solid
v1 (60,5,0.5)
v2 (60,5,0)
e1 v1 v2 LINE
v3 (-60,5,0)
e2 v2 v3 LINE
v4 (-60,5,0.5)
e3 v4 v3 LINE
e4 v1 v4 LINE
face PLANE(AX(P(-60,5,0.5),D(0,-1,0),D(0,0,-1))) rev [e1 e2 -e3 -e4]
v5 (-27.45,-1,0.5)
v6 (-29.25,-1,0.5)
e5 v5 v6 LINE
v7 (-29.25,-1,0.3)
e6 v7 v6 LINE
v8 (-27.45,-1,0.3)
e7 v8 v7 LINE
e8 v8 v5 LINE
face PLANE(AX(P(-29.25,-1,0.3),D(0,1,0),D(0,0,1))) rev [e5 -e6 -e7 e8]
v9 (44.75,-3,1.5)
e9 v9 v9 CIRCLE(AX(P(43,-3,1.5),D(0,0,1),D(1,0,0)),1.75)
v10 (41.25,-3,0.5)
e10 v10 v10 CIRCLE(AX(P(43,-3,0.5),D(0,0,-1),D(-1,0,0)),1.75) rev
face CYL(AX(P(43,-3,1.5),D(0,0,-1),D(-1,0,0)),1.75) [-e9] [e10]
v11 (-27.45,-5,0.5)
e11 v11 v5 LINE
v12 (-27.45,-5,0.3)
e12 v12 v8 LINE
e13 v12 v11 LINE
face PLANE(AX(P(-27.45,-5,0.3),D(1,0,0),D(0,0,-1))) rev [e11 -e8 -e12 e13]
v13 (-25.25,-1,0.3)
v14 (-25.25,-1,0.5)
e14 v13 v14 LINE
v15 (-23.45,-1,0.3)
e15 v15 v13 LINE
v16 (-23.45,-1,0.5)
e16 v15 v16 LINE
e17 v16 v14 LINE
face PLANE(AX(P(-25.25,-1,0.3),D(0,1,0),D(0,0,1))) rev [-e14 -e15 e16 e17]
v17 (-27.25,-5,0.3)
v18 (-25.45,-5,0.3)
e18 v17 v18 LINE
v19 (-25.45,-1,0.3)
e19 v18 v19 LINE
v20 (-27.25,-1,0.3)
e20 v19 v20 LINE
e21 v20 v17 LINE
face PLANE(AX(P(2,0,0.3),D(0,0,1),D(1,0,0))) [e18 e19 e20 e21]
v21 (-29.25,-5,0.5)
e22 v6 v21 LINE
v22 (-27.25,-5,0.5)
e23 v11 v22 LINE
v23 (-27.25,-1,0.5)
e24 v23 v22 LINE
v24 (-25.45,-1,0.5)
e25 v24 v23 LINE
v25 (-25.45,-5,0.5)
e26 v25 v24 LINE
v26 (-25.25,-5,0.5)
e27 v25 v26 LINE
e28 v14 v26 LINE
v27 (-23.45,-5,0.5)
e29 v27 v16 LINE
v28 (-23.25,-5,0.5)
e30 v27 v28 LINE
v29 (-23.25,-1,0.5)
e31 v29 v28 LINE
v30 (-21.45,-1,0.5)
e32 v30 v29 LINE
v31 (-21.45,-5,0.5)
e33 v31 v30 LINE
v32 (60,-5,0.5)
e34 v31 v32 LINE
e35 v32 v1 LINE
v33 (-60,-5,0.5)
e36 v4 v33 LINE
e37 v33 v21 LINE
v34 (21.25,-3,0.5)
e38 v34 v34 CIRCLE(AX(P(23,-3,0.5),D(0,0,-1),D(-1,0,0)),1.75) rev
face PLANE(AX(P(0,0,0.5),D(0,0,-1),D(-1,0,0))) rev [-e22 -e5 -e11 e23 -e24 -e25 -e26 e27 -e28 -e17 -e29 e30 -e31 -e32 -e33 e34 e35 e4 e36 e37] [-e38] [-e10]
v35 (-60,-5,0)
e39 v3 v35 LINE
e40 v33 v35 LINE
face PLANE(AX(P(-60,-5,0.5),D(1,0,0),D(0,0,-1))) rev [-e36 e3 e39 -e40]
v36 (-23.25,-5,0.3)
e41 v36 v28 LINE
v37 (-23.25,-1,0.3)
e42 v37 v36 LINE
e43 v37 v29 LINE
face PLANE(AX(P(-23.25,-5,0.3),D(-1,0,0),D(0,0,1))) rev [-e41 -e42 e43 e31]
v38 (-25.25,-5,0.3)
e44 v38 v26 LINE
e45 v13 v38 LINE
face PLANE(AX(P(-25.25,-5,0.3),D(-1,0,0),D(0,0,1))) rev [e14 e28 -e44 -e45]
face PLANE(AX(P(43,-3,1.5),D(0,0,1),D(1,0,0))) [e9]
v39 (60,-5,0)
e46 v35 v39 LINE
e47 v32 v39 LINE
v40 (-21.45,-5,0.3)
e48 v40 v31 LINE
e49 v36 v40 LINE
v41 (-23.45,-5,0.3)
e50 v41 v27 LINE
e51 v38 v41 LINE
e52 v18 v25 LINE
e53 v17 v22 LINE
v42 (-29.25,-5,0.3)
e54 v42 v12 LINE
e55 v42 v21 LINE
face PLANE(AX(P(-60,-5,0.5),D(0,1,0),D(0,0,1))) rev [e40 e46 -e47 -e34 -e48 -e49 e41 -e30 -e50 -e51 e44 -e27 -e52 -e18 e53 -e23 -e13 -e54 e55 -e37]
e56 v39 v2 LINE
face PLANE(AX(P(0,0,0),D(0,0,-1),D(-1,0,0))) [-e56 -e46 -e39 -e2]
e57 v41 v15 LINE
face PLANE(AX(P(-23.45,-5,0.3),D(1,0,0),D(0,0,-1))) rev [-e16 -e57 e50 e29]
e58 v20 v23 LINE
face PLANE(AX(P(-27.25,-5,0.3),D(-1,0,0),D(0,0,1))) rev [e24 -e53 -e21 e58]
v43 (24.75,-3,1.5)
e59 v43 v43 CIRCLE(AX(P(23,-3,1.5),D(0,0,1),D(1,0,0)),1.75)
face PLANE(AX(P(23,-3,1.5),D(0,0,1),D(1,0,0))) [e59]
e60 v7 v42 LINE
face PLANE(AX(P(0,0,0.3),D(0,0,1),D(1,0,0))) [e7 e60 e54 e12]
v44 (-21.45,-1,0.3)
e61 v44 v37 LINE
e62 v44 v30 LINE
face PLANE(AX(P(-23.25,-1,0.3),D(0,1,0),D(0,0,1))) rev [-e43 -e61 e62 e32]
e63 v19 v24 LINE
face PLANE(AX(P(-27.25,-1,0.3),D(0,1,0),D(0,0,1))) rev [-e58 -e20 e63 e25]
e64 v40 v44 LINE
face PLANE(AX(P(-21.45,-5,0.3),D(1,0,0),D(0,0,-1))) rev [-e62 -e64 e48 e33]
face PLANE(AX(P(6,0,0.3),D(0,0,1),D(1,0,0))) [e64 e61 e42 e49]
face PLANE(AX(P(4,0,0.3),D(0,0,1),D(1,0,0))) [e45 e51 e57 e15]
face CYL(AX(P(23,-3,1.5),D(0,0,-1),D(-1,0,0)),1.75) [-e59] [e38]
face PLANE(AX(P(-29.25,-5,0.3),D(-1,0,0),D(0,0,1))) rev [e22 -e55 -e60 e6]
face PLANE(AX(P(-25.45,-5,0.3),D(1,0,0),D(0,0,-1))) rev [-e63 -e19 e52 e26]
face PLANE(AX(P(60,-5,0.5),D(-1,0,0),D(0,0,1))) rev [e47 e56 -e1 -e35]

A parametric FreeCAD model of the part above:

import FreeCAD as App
import Part
import Sketcher
Q = App.Units.Quantity

doc = App.newDocument("Part")
params = doc.addObject("Spreadsheet::Sheet", "Params")
for row, (alias, value) in enumerate([
    ("sketch1_width", "120 mm"),
    ("sketch1_height", "10 mm"),
    ("pad1_length", "0.5 mm"),
    ("sketch2_diameter", "3.5 mm"),
    ("pad2_length", "1 mm"),
    ("sketch3_height", "4 mm"),
    ("sketch3_width", "1.8 mm"),
    ("pocket1_length", "0.2 mm"),
    ("linearpattern_pitch", "2 mm"),
], start=1):
    params.set(f"A{row}", alias)
    params.set(f"B{row}", "=" + value)
    params.setAlias(f"B{row}", alias)

body = doc.addObject("PartDesign::Body", "Body")

# Sketch on XY plane
sketch1 = doc.addObject("Sketcher::SketchObject", "Sketch")
body.addObject(sketch1)
sketch1.AttachmentSupport = (doc.XY_Plane, [""])
sketch1.MapMode = "FlatFace"
sketch1.addGeometry([
    Part.LineSegment(App.Vector(-60, 5, 0), App.Vector(-60, -5, 0)),
    Part.LineSegment(App.Vector(-60, -5, 0), App.Vector(60, -5, 0)),
    Part.LineSegment(App.Vector(60, -5, 0), App.Vector(60, 5, 0)),
    Part.LineSegment(App.Vector(60, 5, 0), App.Vector(-60, 5, 0)),
], False)
sketch1.addConstraint([
    Sketcher.Constraint("Coincident", 0, 2, 1, 1),
    Sketcher.Constraint("Coincident", 1, 2, 2, 1),
    Sketcher.Constraint("Coincident", 2, 2, 3, 1),
    Sketcher.Constraint("Coincident", 3, 2, 0, 1),
    Sketcher.Constraint("Vertical", 0),
    Sketcher.Constraint("Horizontal", 1),
    Sketcher.Constraint("Vertical", 2),
    Sketcher.Constraint("Horizontal", 3),
    Sketcher.Constraint("Symmetric", 0, 2, 2, 2, -1, 1),
    Sketcher.Constraint("DistanceX", 1, 1, 1, 2, Q("120 mm")),
    Sketcher.Constraint("DistanceY", 0, 2, 0, 1, Q("10 mm")),
])
sketch1.setExpression("Constraints[9]", "Params.sketch1_width")
sketch1.setExpression("Constraints[10]", "Params.sketch1_height")
pad1 = doc.addObject("PartDesign::Pad", "Pad")
body.addObject(pad1)
pad1.Profile = sketch1
pad1.setExpression("Length", "Params.pad1_length")

# Sketch on XY plane
sketch2 = doc.addObject("Sketcher::SketchObject", "Sketch001")
body.addObject(sketch2)
sketch2.AttachmentSupport = (doc.XY_Plane, [""])
sketch2.MapMode = "FlatFace"
sketch2.AttachmentOffset = App.Placement(App.Vector(0, 0, 0.5), App.Rotation())
sketch2.addGeometry([
    Part.Circle(App.Vector(23, -3, 0), App.Vector(0, 0, 1), 1.8),
    Part.Circle(App.Vector(43, -3, 0), App.Vector(0, 0, 1), 1.8),
], False)
sketch2.addConstraint([
    Sketcher.Constraint("Equal", 0, 1),
    Sketcher.Constraint("Horizontal", 0, 3, 1, 3),
    Sketcher.Constraint("Diameter", 0, Q("3.5 mm")),
    Sketcher.Constraint("DistanceX", -1, 1, 0, 3, Q("23 mm")),
    Sketcher.Constraint("DistanceY", 0, 3, -1, 1, Q("3 mm")),
    Sketcher.Constraint("DistanceX", -1, 1, 1, 3, Q("43 mm")),
])
sketch2.setExpression("Constraints[2]", "Params.sketch2_diameter")
pad2 = doc.addObject("PartDesign::Pad", "Pad001")
body.addObject(pad2)
pad2.Profile = sketch2
pad2.setExpression("Length", "Params.pad2_length")

# Sketch on XY plane
sketch3 = doc.addObject("Sketcher::SketchObject", "Sketch002")
body.addObject(sketch3)
sketch3.AttachmentSupport = (doc.XY_Plane, [""])
sketch3.MapMode = "FlatFace"
sketch3.AttachmentOffset = App.Placement(App.Vector(0, 0, 0.5), App.Rotation())
sketch3.addGeometry([
    Part.LineSegment(App.Vector(-29.2, -1, 0), App.Vector(-29.2, -5, 0)),
    Part.LineSegment(App.Vector(-29.2, -5, 0), App.Vector(-27.4, -5, 0)),
    Part.LineSegment(App.Vector(-27.4, -5, 0), App.Vector(-27.4, -1, 0)),
    Part.LineSegment(App.Vector(-27.4, -1, 0), App.Vector(-29.2, -1, 0)),
], False)
sketch3.addConstraint([
    Sketcher.Constraint("Coincident", 0, 2, 1, 1),
    Sketcher.Constraint("Coincident", 1, 2, 2, 1),
    Sketcher.Constraint("Coincident", 2, 2, 3, 1),
    Sketcher.Constraint("Coincident", 3, 2, 0, 1),
    Sketcher.Constraint("Vertical", 0),
    Sketcher.Constraint("Horizontal", 1),
    Sketcher.Constraint("Vertical", 2),
    Sketcher.Constraint("Horizontal", 3),
    Sketcher.Constraint("DistanceY", 0, 2, 0, 1, Q("4 mm")),
    Sketcher.Constraint("DistanceX", 1, 1, 1, 2, Q("1.8 mm")),
    Sketcher.Constraint("DistanceY", 0, 2, -1, 1, Q("5 mm")),
    Sketcher.Constraint("DistanceX", 0, 2, -1, 1, Q("29.25 mm")),
])
sketch3.setExpression("Constraints[8]", "Params.sketch3_height")
sketch3.setExpression("Constraints[9]", "Params.sketch3_width")
pocket1 = doc.addObject("PartDesign::Pocket", "Pocket")
body.addObject(pocket1)
pocket1.Profile = sketch3
pocket1.setExpression("Length", "Params.pocket1_length")
doc.recompute()

linearpattern = doc.addObject("PartDesign::LinearPattern", "LinearPattern")
body.addObject(linearpattern)
linearpattern.Originals = [pocket1]
linearpattern.Direction = (doc.X_Axis, [""])
linearpattern.Mode = "offset"
linearpattern.setExpression("Offset", "Params.linearpattern_pitch")
linearpattern.Occurrences = 4
body.Tip = linearpattern

doc.recompute()
